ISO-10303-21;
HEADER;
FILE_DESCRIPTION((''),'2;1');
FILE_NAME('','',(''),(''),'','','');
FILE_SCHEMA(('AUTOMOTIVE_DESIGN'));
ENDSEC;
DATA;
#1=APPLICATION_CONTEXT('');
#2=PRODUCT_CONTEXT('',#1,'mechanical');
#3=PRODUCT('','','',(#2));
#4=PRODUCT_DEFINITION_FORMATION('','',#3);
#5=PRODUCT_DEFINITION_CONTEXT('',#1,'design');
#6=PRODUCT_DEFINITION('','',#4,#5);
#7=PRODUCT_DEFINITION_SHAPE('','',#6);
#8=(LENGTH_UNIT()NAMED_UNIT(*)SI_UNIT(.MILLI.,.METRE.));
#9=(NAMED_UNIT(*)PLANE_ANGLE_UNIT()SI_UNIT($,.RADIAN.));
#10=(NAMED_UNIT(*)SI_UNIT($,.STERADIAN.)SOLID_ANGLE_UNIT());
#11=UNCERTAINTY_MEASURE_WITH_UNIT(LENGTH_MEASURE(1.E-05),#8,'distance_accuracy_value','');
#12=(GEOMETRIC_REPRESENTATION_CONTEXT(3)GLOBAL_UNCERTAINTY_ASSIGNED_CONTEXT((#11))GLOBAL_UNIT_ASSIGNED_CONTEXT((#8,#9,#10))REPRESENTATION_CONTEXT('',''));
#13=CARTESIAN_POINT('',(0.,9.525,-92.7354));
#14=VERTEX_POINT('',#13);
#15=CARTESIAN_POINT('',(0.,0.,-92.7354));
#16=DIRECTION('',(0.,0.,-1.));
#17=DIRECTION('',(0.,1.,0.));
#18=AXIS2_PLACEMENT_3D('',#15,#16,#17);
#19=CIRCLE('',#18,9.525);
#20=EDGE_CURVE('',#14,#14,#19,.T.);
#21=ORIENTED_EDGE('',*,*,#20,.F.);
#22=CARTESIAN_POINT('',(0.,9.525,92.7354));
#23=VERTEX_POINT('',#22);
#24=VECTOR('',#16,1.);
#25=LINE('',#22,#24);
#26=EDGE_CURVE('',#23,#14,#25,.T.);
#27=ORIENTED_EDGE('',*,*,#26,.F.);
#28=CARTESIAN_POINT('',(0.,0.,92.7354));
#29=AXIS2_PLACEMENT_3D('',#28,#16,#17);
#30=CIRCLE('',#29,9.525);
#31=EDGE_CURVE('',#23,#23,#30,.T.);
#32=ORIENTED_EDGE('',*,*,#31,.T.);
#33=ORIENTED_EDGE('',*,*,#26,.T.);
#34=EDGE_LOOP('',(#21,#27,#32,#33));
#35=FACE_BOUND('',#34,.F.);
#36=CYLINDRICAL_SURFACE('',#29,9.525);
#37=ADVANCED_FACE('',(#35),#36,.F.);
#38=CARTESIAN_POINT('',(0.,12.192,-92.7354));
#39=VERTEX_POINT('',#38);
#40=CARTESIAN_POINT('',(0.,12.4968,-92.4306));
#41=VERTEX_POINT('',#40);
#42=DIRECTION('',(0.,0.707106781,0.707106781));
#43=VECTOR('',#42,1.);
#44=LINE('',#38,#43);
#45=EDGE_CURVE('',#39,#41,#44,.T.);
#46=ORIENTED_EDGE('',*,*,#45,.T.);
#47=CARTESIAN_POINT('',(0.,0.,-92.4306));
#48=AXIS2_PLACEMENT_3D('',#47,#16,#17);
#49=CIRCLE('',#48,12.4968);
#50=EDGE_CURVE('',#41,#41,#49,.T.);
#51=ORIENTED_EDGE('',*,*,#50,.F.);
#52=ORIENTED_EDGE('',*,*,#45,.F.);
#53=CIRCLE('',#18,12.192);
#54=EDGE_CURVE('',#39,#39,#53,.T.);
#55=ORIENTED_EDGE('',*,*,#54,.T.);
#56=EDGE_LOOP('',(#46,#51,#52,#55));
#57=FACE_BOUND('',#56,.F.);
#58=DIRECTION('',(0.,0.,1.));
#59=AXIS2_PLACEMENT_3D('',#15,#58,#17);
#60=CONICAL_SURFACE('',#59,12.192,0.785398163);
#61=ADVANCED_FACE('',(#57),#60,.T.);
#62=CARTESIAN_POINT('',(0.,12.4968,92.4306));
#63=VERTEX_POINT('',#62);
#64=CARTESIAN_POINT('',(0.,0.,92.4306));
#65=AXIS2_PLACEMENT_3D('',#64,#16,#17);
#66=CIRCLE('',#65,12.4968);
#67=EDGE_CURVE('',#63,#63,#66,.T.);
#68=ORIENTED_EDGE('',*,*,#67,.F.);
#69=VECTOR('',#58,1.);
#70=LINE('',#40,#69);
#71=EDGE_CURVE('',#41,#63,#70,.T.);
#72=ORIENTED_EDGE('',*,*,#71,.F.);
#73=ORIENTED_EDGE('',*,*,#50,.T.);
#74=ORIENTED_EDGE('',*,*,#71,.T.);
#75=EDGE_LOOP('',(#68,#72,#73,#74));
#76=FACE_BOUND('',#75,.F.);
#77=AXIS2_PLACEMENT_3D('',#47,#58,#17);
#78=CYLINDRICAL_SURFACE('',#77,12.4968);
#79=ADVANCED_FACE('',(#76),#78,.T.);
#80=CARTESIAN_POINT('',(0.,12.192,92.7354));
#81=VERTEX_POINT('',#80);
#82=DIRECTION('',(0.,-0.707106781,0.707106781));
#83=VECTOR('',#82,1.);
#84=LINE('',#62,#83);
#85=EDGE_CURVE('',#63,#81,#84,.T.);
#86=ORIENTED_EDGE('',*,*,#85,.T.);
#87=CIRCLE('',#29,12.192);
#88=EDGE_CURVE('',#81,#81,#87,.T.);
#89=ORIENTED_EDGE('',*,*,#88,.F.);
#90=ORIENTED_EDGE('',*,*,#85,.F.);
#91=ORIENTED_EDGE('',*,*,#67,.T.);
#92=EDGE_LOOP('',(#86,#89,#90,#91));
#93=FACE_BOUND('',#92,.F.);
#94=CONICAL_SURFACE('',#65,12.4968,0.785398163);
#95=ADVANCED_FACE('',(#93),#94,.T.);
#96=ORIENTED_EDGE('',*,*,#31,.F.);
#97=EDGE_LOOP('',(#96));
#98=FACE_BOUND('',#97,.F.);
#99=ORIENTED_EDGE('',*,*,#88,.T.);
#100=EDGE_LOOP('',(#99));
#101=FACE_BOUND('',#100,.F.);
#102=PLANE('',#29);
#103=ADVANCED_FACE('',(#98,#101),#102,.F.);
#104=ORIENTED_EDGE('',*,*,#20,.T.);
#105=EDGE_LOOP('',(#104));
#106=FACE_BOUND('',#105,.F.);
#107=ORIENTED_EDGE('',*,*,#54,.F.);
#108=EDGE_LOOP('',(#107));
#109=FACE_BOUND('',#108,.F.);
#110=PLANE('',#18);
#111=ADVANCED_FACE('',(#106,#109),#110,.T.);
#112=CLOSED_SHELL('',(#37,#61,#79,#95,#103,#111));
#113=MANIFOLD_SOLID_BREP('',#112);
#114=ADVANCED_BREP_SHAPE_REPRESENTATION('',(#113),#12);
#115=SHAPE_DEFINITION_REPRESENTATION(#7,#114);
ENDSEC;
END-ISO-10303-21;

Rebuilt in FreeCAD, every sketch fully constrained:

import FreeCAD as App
import Part
import Sketcher

V = App.Vector
Q = App.Units.Quantity


def add_polygon(sketch, points):
    """Adds a closed chain of lines whose ends are joined by coincident constraints."""
    first, n = sketch.GeometryCount, len(points)
    for a, b in zip(points, points[1:] + points[:1]):
        sketch.addGeometry(Part.LineSegment(App.Vector(*a, 0), App.Vector(*b, 0)), False)
    for i in range(n):
        sketch.addConstraint(Sketcher.Constraint("Coincident", first + i, 2, first + (i + 1) % n, 1))

doc = App.newDocument("Part")
body = doc.addObject("PartDesign::Body", "Body")

# Sketch on YZ plane
sketch1 = body.newObject("Sketcher::SketchObject", "Sketch")
sketch1.AttachmentSupport = (doc.getObject("YZ_Plane"), [""])
sketch1.MapMode = "FlatFace"
add_polygon(sketch1, [(12.19, 92.74), (9.53, 92.74), (9.53, -92.74), (12.19, -92.74), (12.5, -92.43), (12.5, 92.43)])  # lines 0-5
sketch1.addConstraint([
    Sketcher.Constraint("Horizontal", 0),
    Sketcher.Constraint("Vertical", 1),
    Sketcher.Constraint("Horizontal", 2),
    Sketcher.Constraint("Vertical", 4),
    Sketcher.Constraint("Symmetric", 2, 2, 5, 2, -1),
    Sketcher.Constraint("Perpendicular", 3, 5),
    Sketcher.Constraint("Equal", 3, 5),
    Sketcher.Constraint("DistanceX", 0, 2, 0, 1, Q("0.105 in")),
    Sketcher.Constraint("DistanceY", 1, 2, 1, 1, Q("7.302 in")),
    Sketcher.Constraint("DistanceY", 4, 1, 4, 2, Q("7.278 in")),
    Sketcher.Constraint("DistanceX", -1, 1, 2, 2, Q("0.48 in")),
])
revolution = body.newObject("PartDesign::Revolution", "Revolution")
revolution.Profile = sketch1
revolution.ReferenceAxis = (sketch1, ["V_Axis"])
revolution.Angle = 360

doc.recompute()
